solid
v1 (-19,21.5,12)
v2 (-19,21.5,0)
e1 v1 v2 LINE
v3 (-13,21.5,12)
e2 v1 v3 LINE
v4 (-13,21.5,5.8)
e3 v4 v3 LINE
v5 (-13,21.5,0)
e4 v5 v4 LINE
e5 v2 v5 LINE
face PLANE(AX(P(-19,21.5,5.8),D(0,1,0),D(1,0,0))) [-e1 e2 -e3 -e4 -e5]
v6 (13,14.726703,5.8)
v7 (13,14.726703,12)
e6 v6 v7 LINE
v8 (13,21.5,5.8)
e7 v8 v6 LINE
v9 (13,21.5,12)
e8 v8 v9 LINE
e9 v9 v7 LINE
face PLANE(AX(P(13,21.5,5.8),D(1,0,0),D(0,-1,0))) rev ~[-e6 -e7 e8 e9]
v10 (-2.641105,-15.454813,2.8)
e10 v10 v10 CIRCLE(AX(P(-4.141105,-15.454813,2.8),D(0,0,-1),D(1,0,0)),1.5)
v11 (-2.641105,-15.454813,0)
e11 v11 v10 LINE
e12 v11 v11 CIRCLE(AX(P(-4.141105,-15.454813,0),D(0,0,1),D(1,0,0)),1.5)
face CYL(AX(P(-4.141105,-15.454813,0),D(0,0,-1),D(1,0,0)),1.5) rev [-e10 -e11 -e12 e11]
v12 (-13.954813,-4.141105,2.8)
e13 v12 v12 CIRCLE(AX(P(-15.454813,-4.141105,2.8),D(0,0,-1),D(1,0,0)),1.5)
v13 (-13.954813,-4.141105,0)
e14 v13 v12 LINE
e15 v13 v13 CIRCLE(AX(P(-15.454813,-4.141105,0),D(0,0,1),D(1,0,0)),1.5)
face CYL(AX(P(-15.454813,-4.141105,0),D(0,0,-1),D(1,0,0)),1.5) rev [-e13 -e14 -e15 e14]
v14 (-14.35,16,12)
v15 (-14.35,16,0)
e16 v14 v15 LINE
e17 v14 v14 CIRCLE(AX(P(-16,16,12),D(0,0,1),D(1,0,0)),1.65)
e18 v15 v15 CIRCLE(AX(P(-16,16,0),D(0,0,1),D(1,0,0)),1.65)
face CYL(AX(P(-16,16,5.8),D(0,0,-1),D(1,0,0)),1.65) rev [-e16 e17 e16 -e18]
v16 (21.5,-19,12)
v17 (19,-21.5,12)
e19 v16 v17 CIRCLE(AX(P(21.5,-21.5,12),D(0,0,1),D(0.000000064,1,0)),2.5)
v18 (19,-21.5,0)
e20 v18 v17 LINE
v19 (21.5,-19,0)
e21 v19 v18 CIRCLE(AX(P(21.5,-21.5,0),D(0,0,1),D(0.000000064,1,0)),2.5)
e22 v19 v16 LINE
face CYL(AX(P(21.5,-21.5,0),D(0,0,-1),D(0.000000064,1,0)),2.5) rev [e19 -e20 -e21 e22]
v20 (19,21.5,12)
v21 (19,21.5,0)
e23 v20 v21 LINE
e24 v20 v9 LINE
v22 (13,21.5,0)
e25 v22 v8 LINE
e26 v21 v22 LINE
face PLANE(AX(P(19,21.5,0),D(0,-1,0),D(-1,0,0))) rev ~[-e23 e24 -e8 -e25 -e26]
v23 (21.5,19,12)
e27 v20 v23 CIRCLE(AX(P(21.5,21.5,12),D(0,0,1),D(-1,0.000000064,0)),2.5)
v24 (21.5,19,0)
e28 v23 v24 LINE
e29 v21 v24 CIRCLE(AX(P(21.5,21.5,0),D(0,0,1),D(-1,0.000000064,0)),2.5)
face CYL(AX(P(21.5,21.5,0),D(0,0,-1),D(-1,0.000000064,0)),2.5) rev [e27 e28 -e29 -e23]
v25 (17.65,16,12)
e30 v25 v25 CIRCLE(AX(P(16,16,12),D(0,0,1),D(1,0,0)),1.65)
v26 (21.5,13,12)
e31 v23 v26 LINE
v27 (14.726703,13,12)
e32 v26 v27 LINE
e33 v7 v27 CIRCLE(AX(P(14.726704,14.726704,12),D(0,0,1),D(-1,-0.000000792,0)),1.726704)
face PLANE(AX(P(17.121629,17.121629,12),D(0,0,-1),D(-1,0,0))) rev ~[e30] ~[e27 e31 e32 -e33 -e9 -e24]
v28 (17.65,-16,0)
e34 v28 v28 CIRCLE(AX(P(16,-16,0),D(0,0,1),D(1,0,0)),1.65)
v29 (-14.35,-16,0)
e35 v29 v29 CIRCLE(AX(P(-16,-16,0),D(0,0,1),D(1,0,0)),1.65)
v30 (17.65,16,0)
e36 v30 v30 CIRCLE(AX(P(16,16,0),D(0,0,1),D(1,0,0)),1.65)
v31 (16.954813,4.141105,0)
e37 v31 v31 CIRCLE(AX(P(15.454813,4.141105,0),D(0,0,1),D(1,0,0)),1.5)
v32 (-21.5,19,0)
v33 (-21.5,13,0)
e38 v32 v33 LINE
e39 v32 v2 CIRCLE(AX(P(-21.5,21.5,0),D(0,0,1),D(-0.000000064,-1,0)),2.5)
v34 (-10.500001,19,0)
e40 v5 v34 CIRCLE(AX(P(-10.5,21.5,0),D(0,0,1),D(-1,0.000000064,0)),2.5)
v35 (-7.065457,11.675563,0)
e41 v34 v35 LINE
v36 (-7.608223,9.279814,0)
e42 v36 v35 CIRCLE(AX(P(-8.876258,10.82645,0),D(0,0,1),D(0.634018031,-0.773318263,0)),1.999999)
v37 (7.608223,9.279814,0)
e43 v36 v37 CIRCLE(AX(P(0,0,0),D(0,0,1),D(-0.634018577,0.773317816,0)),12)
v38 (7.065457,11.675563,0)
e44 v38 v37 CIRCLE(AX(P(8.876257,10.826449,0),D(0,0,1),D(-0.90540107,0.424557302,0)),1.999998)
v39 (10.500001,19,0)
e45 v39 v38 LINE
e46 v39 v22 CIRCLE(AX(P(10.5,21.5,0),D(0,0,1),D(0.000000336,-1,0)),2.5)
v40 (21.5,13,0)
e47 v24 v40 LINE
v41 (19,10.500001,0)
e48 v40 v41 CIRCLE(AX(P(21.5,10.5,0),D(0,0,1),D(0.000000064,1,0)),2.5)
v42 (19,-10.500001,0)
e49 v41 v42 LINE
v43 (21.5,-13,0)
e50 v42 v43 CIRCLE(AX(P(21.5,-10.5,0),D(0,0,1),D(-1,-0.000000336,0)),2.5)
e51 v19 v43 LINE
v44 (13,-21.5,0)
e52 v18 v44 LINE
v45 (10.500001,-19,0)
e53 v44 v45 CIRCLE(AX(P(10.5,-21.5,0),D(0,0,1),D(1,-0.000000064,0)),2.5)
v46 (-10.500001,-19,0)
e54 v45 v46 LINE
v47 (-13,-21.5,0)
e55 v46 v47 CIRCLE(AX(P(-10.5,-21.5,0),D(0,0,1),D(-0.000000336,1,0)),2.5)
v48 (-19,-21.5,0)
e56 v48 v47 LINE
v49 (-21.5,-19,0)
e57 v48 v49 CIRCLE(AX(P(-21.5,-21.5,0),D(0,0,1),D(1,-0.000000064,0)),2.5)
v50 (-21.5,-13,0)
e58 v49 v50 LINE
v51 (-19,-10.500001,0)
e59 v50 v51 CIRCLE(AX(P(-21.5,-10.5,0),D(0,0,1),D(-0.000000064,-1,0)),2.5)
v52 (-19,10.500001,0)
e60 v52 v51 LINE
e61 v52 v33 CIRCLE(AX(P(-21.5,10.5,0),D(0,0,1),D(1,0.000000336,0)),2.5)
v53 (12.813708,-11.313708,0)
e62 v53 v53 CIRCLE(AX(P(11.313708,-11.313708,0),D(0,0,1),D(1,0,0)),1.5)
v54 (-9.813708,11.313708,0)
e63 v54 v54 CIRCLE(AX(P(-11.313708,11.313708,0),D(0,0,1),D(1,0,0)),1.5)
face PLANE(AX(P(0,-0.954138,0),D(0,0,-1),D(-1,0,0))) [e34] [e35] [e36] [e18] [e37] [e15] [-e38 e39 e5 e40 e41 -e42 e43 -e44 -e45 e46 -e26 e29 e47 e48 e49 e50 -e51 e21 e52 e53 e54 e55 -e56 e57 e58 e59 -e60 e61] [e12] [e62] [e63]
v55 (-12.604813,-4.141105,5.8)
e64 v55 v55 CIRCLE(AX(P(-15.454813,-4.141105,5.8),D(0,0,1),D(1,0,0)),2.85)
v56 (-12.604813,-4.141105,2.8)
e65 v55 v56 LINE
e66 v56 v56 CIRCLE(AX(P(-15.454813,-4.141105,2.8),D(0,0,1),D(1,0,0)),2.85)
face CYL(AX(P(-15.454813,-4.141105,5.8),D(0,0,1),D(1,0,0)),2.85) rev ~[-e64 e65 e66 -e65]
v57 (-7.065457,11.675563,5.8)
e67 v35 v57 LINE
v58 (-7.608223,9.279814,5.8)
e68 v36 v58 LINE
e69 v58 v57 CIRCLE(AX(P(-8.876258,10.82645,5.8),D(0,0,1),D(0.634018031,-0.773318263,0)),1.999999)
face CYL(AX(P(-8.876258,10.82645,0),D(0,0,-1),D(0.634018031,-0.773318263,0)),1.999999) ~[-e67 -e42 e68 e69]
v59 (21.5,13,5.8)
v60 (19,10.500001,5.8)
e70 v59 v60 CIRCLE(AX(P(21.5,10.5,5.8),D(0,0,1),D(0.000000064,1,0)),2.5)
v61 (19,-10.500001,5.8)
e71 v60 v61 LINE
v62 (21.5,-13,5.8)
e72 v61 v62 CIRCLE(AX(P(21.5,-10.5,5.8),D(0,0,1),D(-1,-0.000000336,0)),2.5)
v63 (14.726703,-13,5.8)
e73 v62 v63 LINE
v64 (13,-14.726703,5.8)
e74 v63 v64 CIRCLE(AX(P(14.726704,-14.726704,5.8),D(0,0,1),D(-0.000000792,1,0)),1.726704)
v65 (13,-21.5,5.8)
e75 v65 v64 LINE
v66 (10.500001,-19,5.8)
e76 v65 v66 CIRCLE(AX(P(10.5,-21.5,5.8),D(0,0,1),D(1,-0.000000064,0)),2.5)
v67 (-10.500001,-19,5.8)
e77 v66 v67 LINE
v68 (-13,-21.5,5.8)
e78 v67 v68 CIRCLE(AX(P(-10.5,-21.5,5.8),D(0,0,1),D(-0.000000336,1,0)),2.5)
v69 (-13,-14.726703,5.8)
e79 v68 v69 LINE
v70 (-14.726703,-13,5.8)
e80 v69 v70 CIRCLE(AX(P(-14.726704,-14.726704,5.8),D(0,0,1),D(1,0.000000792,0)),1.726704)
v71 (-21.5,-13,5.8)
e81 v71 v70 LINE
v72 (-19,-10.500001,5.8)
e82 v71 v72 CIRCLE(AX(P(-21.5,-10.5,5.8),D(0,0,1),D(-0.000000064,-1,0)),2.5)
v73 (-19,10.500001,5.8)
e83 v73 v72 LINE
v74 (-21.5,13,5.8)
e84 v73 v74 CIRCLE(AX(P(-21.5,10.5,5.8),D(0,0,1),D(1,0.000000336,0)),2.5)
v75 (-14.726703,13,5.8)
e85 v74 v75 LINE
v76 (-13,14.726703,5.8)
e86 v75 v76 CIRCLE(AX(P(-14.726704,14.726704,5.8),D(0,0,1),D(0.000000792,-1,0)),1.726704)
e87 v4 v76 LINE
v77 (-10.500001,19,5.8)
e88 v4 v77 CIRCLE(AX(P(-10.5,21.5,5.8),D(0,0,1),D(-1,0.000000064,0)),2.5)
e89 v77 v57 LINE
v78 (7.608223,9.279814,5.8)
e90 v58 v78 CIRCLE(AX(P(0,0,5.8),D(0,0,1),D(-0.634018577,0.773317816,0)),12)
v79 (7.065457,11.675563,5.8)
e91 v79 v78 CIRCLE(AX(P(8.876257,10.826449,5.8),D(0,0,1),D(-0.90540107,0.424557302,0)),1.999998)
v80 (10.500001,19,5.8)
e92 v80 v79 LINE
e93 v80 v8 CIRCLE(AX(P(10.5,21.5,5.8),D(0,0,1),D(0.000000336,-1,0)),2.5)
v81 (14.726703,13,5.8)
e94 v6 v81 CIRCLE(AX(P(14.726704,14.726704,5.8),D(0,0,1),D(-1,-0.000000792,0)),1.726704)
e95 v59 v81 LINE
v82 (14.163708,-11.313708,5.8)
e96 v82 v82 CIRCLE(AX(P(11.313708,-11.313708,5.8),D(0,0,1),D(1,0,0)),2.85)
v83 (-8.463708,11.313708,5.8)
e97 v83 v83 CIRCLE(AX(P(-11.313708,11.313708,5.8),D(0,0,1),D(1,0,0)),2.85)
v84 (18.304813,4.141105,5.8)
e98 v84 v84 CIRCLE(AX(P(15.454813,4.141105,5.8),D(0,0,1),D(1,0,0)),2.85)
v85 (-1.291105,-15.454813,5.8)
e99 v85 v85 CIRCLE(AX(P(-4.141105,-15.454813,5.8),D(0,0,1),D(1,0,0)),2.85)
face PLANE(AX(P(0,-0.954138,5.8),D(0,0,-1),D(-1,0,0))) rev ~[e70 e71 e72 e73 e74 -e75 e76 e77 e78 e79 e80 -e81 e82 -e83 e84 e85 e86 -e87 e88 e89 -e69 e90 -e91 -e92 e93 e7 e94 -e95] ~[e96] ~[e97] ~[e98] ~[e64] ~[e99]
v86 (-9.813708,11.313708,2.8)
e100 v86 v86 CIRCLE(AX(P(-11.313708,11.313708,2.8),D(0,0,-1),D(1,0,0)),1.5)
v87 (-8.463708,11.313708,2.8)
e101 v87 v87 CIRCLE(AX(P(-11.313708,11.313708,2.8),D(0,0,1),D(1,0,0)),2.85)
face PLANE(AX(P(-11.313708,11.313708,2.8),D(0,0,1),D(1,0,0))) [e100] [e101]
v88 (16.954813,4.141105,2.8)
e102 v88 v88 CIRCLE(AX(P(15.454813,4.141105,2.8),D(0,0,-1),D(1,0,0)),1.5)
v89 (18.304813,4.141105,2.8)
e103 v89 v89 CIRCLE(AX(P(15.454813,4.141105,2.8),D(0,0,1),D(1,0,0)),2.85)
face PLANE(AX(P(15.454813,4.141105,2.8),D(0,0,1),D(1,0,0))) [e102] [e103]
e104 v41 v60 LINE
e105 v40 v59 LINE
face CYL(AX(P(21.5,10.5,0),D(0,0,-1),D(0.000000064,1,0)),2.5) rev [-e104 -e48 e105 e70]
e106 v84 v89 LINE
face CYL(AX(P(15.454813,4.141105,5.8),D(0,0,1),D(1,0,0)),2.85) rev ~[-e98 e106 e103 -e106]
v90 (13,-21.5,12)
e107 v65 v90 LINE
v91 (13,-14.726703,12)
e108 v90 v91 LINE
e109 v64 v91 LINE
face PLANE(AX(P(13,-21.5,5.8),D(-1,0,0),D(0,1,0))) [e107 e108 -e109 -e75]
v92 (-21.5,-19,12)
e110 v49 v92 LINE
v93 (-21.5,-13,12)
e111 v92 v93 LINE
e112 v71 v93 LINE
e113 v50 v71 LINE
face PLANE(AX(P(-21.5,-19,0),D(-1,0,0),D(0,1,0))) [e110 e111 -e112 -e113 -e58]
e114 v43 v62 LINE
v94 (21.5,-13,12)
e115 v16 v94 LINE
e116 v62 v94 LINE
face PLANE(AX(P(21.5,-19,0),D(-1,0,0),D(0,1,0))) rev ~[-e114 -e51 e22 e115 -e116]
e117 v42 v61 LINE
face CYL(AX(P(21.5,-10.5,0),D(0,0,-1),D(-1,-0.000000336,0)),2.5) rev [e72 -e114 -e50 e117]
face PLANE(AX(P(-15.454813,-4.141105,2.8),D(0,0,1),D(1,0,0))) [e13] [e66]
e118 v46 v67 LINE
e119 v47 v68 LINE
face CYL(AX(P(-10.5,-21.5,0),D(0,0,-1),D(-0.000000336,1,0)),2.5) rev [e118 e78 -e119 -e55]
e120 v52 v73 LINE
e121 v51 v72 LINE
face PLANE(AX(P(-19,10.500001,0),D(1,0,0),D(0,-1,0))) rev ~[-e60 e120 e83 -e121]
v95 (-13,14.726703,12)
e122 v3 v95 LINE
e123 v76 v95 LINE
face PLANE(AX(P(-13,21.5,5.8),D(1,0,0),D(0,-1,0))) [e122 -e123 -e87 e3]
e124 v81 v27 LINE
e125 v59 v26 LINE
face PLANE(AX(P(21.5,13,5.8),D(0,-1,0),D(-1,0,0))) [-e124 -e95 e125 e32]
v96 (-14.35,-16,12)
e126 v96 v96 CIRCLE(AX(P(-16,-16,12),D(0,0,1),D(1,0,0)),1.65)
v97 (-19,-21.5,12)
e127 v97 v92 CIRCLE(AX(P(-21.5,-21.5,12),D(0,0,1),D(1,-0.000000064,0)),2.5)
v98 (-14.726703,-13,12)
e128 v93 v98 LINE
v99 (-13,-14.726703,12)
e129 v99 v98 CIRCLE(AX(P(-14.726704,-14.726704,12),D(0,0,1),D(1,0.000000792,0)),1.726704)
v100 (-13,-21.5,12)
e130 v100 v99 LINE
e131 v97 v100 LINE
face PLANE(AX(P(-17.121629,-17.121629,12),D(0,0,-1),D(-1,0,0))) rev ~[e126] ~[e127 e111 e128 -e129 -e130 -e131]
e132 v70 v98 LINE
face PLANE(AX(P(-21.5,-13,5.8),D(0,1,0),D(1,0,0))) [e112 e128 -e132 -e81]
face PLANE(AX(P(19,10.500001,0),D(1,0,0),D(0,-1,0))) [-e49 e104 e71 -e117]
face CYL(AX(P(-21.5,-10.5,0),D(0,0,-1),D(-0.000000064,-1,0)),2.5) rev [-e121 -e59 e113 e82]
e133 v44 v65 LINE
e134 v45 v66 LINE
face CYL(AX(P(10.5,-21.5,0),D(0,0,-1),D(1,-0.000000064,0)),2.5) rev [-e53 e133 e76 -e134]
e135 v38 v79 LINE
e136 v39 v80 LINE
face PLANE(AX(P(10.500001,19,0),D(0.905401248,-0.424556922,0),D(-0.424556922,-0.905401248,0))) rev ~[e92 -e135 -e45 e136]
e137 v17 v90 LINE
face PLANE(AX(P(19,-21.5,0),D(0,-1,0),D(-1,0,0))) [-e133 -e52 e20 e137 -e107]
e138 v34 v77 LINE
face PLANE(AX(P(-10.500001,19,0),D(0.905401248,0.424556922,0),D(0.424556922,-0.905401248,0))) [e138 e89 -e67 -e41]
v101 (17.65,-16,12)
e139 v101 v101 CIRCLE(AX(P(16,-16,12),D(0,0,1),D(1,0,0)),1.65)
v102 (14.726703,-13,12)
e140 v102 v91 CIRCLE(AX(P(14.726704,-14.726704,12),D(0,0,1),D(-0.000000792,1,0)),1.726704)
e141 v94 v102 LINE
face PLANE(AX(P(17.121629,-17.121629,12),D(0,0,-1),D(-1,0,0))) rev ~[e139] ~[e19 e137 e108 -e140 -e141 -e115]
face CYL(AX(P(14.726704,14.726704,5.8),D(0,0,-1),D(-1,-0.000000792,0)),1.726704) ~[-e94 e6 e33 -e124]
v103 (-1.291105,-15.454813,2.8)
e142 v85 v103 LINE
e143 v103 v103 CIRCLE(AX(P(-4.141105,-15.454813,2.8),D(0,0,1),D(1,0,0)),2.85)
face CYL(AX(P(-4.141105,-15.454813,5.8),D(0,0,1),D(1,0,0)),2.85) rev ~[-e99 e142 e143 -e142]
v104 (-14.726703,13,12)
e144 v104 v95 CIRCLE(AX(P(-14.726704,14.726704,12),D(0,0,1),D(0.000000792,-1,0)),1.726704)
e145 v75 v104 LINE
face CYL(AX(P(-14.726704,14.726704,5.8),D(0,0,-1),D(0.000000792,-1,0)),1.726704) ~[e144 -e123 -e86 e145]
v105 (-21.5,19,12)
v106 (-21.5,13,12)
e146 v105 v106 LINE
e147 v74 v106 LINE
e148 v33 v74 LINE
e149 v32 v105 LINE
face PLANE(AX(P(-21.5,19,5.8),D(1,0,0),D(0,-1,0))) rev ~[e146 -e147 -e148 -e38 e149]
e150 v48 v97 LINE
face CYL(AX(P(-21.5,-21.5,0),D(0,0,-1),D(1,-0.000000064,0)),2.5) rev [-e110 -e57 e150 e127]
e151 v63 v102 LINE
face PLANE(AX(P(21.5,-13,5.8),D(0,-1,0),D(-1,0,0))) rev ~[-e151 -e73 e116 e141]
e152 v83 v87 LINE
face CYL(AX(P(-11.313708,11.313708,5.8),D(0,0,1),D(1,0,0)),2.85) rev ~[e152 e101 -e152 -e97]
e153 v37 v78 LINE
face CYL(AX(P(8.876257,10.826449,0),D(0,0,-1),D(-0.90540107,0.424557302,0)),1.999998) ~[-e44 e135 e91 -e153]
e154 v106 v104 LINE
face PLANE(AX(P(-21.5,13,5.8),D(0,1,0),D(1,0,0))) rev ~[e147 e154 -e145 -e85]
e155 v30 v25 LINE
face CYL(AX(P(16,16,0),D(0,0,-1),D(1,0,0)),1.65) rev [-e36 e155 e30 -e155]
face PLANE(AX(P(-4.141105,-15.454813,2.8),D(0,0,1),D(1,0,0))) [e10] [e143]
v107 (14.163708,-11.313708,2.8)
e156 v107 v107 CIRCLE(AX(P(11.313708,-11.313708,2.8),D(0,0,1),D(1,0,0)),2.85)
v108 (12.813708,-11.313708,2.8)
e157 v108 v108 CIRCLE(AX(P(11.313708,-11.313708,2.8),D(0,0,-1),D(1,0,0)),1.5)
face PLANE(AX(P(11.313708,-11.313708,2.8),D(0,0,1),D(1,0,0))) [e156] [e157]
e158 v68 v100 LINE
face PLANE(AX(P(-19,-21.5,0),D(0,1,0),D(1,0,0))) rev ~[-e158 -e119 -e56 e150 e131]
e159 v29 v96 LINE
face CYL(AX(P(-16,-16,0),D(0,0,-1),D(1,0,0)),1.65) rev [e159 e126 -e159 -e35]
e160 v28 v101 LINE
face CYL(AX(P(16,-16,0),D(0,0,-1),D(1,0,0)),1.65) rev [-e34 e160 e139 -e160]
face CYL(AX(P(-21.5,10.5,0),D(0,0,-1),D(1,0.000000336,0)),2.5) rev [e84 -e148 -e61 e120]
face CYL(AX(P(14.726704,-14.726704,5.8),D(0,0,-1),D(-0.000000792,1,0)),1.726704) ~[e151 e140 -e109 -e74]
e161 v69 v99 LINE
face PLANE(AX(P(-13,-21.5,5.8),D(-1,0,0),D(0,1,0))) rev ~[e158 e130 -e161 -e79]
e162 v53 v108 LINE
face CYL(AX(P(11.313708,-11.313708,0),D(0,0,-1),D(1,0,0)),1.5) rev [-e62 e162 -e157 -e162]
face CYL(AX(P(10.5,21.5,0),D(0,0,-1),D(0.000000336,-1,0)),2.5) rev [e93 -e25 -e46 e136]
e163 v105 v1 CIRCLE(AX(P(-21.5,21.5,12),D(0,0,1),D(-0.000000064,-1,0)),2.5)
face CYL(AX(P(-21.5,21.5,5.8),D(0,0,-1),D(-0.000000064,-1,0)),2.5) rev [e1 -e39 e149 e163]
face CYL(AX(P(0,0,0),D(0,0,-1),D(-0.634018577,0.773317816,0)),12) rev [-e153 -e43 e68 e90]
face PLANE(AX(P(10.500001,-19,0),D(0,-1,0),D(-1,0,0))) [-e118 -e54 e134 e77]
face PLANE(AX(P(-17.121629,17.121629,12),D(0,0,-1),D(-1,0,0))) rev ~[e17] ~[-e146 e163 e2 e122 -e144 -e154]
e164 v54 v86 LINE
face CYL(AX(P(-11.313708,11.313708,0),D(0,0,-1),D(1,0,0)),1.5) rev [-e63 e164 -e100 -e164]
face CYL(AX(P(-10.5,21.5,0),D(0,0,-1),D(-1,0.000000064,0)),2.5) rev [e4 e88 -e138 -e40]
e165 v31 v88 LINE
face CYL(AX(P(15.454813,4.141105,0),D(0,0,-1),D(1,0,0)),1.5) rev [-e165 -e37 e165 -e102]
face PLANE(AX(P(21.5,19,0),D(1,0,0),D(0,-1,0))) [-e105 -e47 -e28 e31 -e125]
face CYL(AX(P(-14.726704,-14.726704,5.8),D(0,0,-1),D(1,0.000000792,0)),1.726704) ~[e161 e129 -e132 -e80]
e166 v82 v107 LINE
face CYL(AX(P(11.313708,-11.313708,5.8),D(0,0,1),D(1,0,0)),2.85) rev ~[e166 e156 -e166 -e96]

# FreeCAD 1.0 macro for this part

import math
import FreeCAD as App
import Part
import Sketcher
from FreeCAD import Vector
Q = App.Units.Quantity

doc = App.newDocument("Part")
body = doc.addObject("PartDesign::Body", "Body")

sketch1 = body.newObject("Sketcher::SketchObject", "Sketch")
sketch1.AttachmentSupport = (doc.getObject("XY_Plane"), [""])
sketch1.MapMode = "FlatFace"
sketch1.addGeometry(Part.ArcOfCircle(Part.Circle(Vector(-21.5, 21.5, 0), Vector(0, 0, 1), 2.5), math.radians(-90), math.radians(0)), False)
sketch1.addGeometry(Part.LineSegment(Vector(-21.5, 19, 0), Vector(-21.5, 13, 0)), False)
sketch1.addGeometry(Part.ArcOfCircle(Part.Circle(Vector(-21.5, 10.5, 0), Vector(0, 0, 1), 2.5), math.radians(0), math.radians(90)), False)
sketch1.addGeometry(Part.LineSegment(Vector(-19, 10.5, 0), Vector(-19, -10.5, 0)), False)
sketch1.addGeometry(Part.ArcOfCircle(Part.Circle(Vector(-21.5, -10.5, 0), Vector(0, 0, 1), 2.5), math.radians(-90), math.radians(0)), False)
sketch1.addGeometry(Part.LineSegment(Vector(-21.5, -13, 0), Vector(-21.5, -19, 0)), False)
sketch1.addGeometry(Part.ArcOfCircle(Part.Circle(Vector(-21.5, -21.5, 0), Vector(0, 0, 1), 2.5), math.radians(0), math.radians(90)), False)
sketch1.addGeometry(Part.LineSegment(Vector(-19, -21.5, 0), Vector(-13, -21.5, 0)), False)
sketch1.addGeometry(Part.ArcOfCircle(Part.Circle(Vector(-10.5, -21.5, 0), Vector(0, 0, 1), 2.5), math.radians(90), math.radians(180)), False)
sketch1.addGeometry(Part.LineSegment(Vector(-10.5, -19, 0), Vector(10.5, -19, 0)), False)
sketch1.addGeometry(Part.ArcOfCircle(Part.Circle(Vector(10.5, -21.5, 0), Vector(0, 0, 1), 2.5), math.radians(0), math.radians(90)), False)
sketch1.addGeometry(Part.LineSegment(Vector(13, -21.5, 0), Vector(19, -21.5, 0)), False)
sketch1.addGeometry(Part.ArcOfCircle(Part.Circle(Vector(21.5, -21.5, 0), Vector(0, 0, 1), 2.5), math.radians(90), math.radians(180)), False)
sketch1.addGeometry(Part.LineSegment(Vector(21.5, -19, 0), Vector(21.5, -13, 0)), False)
sketch1.addGeometry(Part.ArcOfCircle(Part.Circle(Vector(21.5, -10.5, 0), Vector(0, 0, 1), 2.5), math.radians(-180), math.radians(-90)), False)
sketch1.addGeometry(Part.LineSegment(Vector(19, -10.5, 0), Vector(19, 10.5, 0)), False)
sketch1.addGeometry(Part.ArcOfCircle(Part.Circle(Vector(21.5, 10.5, 0), Vector(0, 0, 1), 2.5), math.radians(90), math.radians(180)), False)
sketch1.addGeometry(Part.LineSegment(Vector(21.5, 13, 0), Vector(21.5, 19, 0)), False)
sketch1.addGeometry(Part.ArcOfCircle(Part.Circle(Vector(21.5, 21.5, 0), Vector(0, 0, 1), 2.5), math.radians(180), math.radians(270)), False)
sketch1.addGeometry(Part.LineSegment(Vector(19, 21.5, 0), Vector(13, 21.5, 0)), False)
sketch1.addGeometry(Part.ArcOfCircle(Part.Circle(Vector(10.5, 21.5, 0), Vector(0, 0, 1), 2.5), math.radians(-90), math.radians(0)), False)
sketch1.addGeometry(Part.LineSegment(Vector(10.5, 19, 0), Vector(7.1, 11.7, 0)), False)
sketch1.addGeometry(Part.ArcOfCircle(Part.Circle(Vector(8.9, 10.8, 0), Vector(0, 0, 1), 2), math.radians(155), math.radians(231)), False)
sketch1.addGeometry(Part.ArcOfCircle(Part.Circle(Vector(0, 0, 0), Vector(0, 0, 1), 12), math.radians(129), math.radians(411)), False)
sketch1.addGeometry(Part.ArcOfCircle(Part.Circle(Vector(-8.9, 10.8, 0), Vector(0, 0, 1), 2), math.radians(-51), math.radians(25)), False)
sketch1.addGeometry(Part.LineSegment(Vector(-7.1, 11.7, 0), Vector(-10.5, 19, 0)), False)
sketch1.addGeometry(Part.ArcOfCircle(Part.Circle(Vector(-10.5, 21.5, 0), Vector(0, 0, 1), 2.5), math.radians(180), math.radians(270)), False)
sketch1.addGeometry(Part.LineSegment(Vector(-13, 21.5, 0), Vector(-19, 21.5, 0)), False)
sketch1.addGeometry(Part.Circle(Vector(16, -16, 0), Vector(0, 0, 1), 1.6), False)
sketch1.addGeometry(Part.Circle(Vector(11.3, -11.3, 0), Vector(0, 0, 1), 1.5), False)
sketch1.addGeometry(Part.Circle(Vector(-4.1, -15.5, 0), Vector(0, 0, 1), 1.5), False)
sketch1.addGeometry(Part.Circle(Vector(-16, -16, 0), Vector(0, 0, 1), 1.6), False)
sketch1.addGeometry(Part.Circle(Vector(-15.5, -4.1, 0), Vector(0, 0, 1), 1.5), False)
sketch1.addGeometry(Part.Circle(Vector(15.5, 4.1, 0), Vector(0, 0, 1), 1.5), False)
sketch1.addGeometry(Part.Circle(Vector(16, 16, 0), Vector(0, 0, 1), 1.6), False)
sketch1.addGeometry(Part.Circle(Vector(-11.3, 11.3, 0), Vector(0, 0, 1), 1.5), False)
sketch1.addGeometry(Part.Circle(Vector(-16, 16, 0), Vector(0, 0, 1), 1.6), False)
sketch1.addConstraint(Sketcher.Constraint("Coincident", 0, 1, 1, 1))
sketch1.addConstraint(Sketcher.Constraint("Coincident", 1, 2, 2, 2))
sketch1.addConstraint(Sketcher.Constraint("Tangent", 2, 1, 3, 1))
sketch1.addConstraint(Sketcher.Constraint("Tangent", 3, 2, 4, 2))
sketch1.addConstraint(Sketcher.Constraint("Coincident", 4, 1, 5, 1))
sketch1.addConstraint(Sketcher.Constraint("Coincident", 5, 2, 6, 2))
sketch1.addConstraint(Sketcher.Constraint("Coincident", 6, 1, 7, 1))
sketch1.addConstraint(Sketcher.Constraint("Coincident", 7, 2, 8, 2))
sketch1.addConstraint(Sketcher.Constraint("Tangent", 8, 1, 9, 1))
sketch1.addConstraint(Sketcher.Constraint("Tangent", 9, 2, 10, 2))
sketch1.addConstraint(Sketcher.Constraint("Coincident", 10, 1, 11, 1))
sketch1.addConstraint(Sketcher.Constraint("Coincident", 11, 2, 12, 2))
sketch1.addConstraint(Sketcher.Constraint("Coincident", 12, 1, 13, 1))
sketch1.addConstraint(Sketcher.Constraint("Coincident", 13, 2, 14, 2))
sketch1.addConstraint(Sketcher.Constraint("Tangent", 14, 1, 15, 1))
sketch1.addConstraint(Sketcher.Constraint("Tangent", 15, 2, 16, 2))
sketch1.addConstraint(Sketcher.Constraint("Coincident", 16, 1, 17, 1))
sketch1.addConstraint(Sketcher.Constraint("Coincident", 17, 2, 18, 2))
sketch1.addConstraint(Sketcher.Constraint("Coincident", 18, 1, 19, 1))
sketch1.addConstraint(Sketcher.Constraint("Coincident", 19, 2, 20, 2))
sketch1.addConstraint(Sketcher.Constraint("Coincident", 20, 1, 21, 1))
sketch1.addConstraint(Sketcher.Constraint("Tangent", 21, 2, 22, 1))
sketch1.addConstraint(Sketcher.Constraint("Tangent", 22, 2, 23, 2))
sketch1.addConstraint(Sketcher.Constraint("Tangent", 23, 1, 24, 1))
sketch1.addConstraint(Sketcher.Constraint("Tangent", 24, 2, 25, 1))
sketch1.addConstraint(Sketcher.Constraint("Coincident", 25, 2, 26, 2))
sketch1.addConstraint(Sketcher.Constraint("Coincident", 26, 1, 27, 1))
sketch1.addConstraint(Sketcher.Constraint("Coincident", 27, 2, 0, 2))
sketch1.addConstraint(Sketcher.Constraint("Vertical", 1))
sketch1.addConstraint(Sketcher.Constraint("Vertical", 3))
sketch1.addConstraint(Sketcher.Constraint("Vertical", 5))
sketch1.addConstraint(Sketcher.Constraint("Horizontal", 7))
sketch1.addConstraint(Sketcher.Constraint("Horizontal", 9))
sketch1.addConstraint(Sketcher.Constraint("Horizontal", 11))
sketch1.addConstraint(Sketcher.Constraint("Vertical", 13))
sketch1.addConstraint(Sketcher.Constraint("Vertical", 15))
sketch1.addConstraint(Sketcher.Constraint("Vertical", 17))
sketch1.addConstraint(Sketcher.Constraint("Horizontal", 19))
sketch1.addConstraint(Sketcher.Constraint("Horizontal", 27))
sketch1.addConstraint(Sketcher.Constraint("Coincident", 23, 3, -1, 1))
sketch1.addConstraint(Sketcher.Constraint("Equal", 0, 2))
sketch1.addConstraint(Sketcher.Constraint("Equal", 2, 4))
sketch1.addConstraint(Sketcher.Constraint("Equal", 4, 6))
sketch1.addConstraint(Sketcher.Constraint("Equal", 6, 8))
sketch1.addConstraint(Sketcher.Constraint("Equal", 8, 10))
sketch1.addConstraint(Sketcher.Constraint("Equal", 10, 12))
sketch1.addConstraint(Sketcher.Constraint("Equal", 12, 14))
sketch1.addConstraint(Sketcher.Constraint("Equal", 14, 16))
sketch1.addConstraint(Sketcher.Constraint("Equal", 16, 18))
sketch1.addConstraint(Sketcher.Constraint("Equal", 18, 20))
sketch1.addConstraint(Sketcher.Constraint("Equal", 22, 24))
sketch1.addConstraint(Sketcher.Constraint("Equal", 20, 26))
sketch1.addConstraint(Sketcher.Constraint("Equal", 29, 30))
sketch1.addConstraint(Sketcher.Constraint("Equal", 28, 31))
sketch1.addConstraint(Sketcher.Constraint("Equal", 30, 32))
sketch1.addConstraint(Sketcher.Constraint("Equal", 32, 33))
sketch1.addConstraint(Sketcher.Constraint("Equal", 31, 34))
sketch1.addConstraint(Sketcher.Constraint("Equal", 33, 35))
sketch1.addConstraint(Sketcher.Constraint("Equal", 34, 36))
sketch1.addConstraint(Sketcher.Constraint("Symmetric", 0, 3, 12, 3, -1, 1))
sketch1.addConstraint(Sketcher.Constraint("Symmetric", 2, 3, 14, 3, -1, 1))
sketch1.addConstraint(Sketcher.Constraint("Symmetric", 6, 3, 18, 3, -1, 1))
sketch1.addConstraint(Sketcher.Constraint("Symmetric", 8, 3, 20, 3, -1, 1))
sketch1.addConstraint(Sketcher.Constraint("Symmetric", 10, 3, 26, 3, -1, 1))
sketch1.addConstraint(Sketcher.Constraint("Symmetric", 32, 3, 33, 3, -1, 1))
sketch1.addConstraint(Sketcher.Constraint("Symmetric", 31, 3, 34, 3, -1, 1))
sketch1.addConstraint(Sketcher.Constraint("Symmetric", 29, 3, 35, 3, -1, 1))
sketch1.addConstraint(Sketcher.Constraint("Symmetric", 28, 3, 36, 3, -1, 1))
sketch1.addConstraint(Sketcher.Constraint("Symmetric", 4, 1, 16, 1, -1, 1))
sketch1.addConstraint(Sketcher.Constraint("Symmetric", 6, 3, 12, 3, -2))
sketch1.addConstraint(Sketcher.Constraint("Symmetric", 28, 3, 31, 3, -2))
sketch1.addConstraint(Sketcher.Constraint("Symmetric", 7, 2, 10, 1, -2))
sketch1.addConstraint(Sketcher.Constraint("Symmetric", 4, 1, 13, 2, -2))
sketch1.addConstraint(Sketcher.Constraint("Symmetric", 21, 2, 24, 2, -2))
sketch1.addConstraint(Sketcher.Constraint("Horizontal", 6, 3, 8, 3))
sketch1.addConstraint(Sketcher.Constraint("Horizontal", 12, 3, 6, 1))
sketch1.addConstraint(Sketcher.Constraint("Horizontal", 26, 3, 18, 1))
sketch1.addConstraint(Sketcher.Constraint("Horizontal", 19, 2, 26, 1))
sketch1.addConstraint(Sketcher.Constraint("Vertical", 0, 3, 2, 3))
sketch1.addConstraint(Sketcher.Constraint("Vertical", 6, 3, 0, 1))
sketch1.addConstraint(Sketcher.Constraint("Vertical", 1, 2, 4, 1))
sketch1.addConstraint(Sketcher.Constraint("Vertical", 9, 2, 20, 1))
sketch1.addConstraint(Sketcher.Constraint("Equal", 27, 1))
sketch1.addConstraint(Sketcher.Constraint("Equal", 9, 3))
sketch1.addConstraint(Sketcher.Constraint("Diameter", 29, Q("3 mm")))
sketch1.addConstraint(Sketcher.Constraint("Radius", 23, Q("12 mm")))
sketch1.addConstraint(Sketcher.Constraint("Radius", 24, Q("1.999999 mm")))
sketch1.addConstraint(Sketcher.Constraint("Diameter", 28, Q("3.3 mm")))
sketch1.addConstraint(Sketcher.Constraint("Radius", 0, Q("2.5 mm")))
sketch1.addConstraint(Sketcher.Constraint("DistanceX", 7, 1, 7, 2, Q("6 mm")))
sketch1.addConstraint(Sketcher.Constraint("DistanceX", 9, 1, 9, 2, Q("21.000002 mm")))
sketch1.addConstraint(Sketcher.Constraint("DistanceX", -1, 1, 28, 3, Q("16 mm")))
sketch1.addConstraint(Sketcher.Constraint("DistanceY", 28, 3, -1, 1, Q("16 mm")))
sketch1.addConstraint(Sketcher.Constraint("DistanceX", 21, 2, 22, 3, Q("1.8108 mm")))
sketch1.addConstraint(Sketcher.Constraint("DistanceY", 10, 3, 29, 3, Q("10.186292 mm")))
sketch1.addConstraint(Sketcher.Constraint("DistanceX", 29, 3, 14, 3, Q("10.186292 mm")))
sketch1.addConstraint(Sketcher.Constraint("DistanceY", 33, 3, 21, 2, Q("7.534458 mm")))
sketch1.addConstraint(Sketcher.Constraint("DistanceX", 22, 2, 33, 3, Q("7.84659 mm")))
sketch1.addConstraint(Sketcher.Constraint("DistanceX", 30, 3, -1, 1, Q("4.141105 mm")))
sketch1.addConstraint(Sketcher.Constraint("DistanceY", 30, 3, -1, 1, Q("15.454813 mm")))
pad1 = body.newObject("PartDesign::Pad", "Pad")
pad1.Profile = sketch1
pad1.Length = 5.8

sketch2 = body.newObject("Sketcher::SketchObject", "Sketch001")
sketch2.AttachmentSupport = (doc.getObject("XY_Plane"), [""])
sketch2.MapMode = "FlatFace"
sketch2.AttachmentOffset = App.Placement(Vector(0, 0, 5.8), App.Rotation())
sketch2.addGeometry(Part.ArcOfCircle(Part.Circle(Vector(-21.5, 21.5, 0), Vector(0, 0, 1), 2.5), math.radians(-90), math.radians(0)), False)
sketch2.addGeometry(Part.LineSegment(Vector(-21.5, 19, 0), Vector(-21.5, 13, 0)), False)
sketch2.addGeometry(Part.LineSegment(Vector(-21.5, 13, 0), Vector(-14.7, 13, 0)), False)
sketch2.addGeometry(Part.ArcOfCircle(Part.Circle(Vector(-14.7, 14.7, 0), Vector(0, 0, 1), 1.7), math.radians(-90), math.radians(0)), False)
sketch2.addGeometry(Part.LineSegment(Vector(-13, 14.7, 0), Vector(-13, 21.5, 0)), False)
sketch2.addGeometry(Part.LineSegment(Vector(-13, 21.5, 0), Vector(-19, 21.5, 0)), False)
sketch2.addGeometry(Part.Circle(Vector(-16, 16, 0), Vector(0, 0, 1), 1.6), False)
sketch2.addGeometry(Part.ArcOfCircle(Part.Circle(Vector(-21.5, -21.5, 0), Vector(0, 0, 1), 2.5), math.radians(0), math.radians(90)), False)
sketch2.addGeometry(Part.LineSegment(Vector(-19, -21.5, 0), Vector(-13, -21.5, 0)), False)
sketch2.addGeometry(Part.LineSegment(Vector(-13, -21.5, 0), Vector(-13, -14.7, 0)), False)
sketch2.addGeometry(Part.ArcOfCircle(Part.Circle(Vector(-14.7, -14.7, 0), Vector(0, 0, 1), 1.7), math.radians(0), math.radians(90)), False)
sketch2.addGeometry(Part.LineSegment(Vector(-14.7, -13, 0), Vector(-21.5, -13, 0)), False)
sketch2.addGeometry(Part.LineSegment(Vector(-21.5, -13, 0), Vector(-21.5, -19, 0)), False)
sketch2.addGeometry(Part.Circle(Vector(-16, -16, 0), Vector(0, 0, 1), 1.6), False)
sketch2.addGeometry(Part.ArcOfCircle(Part.Circle(Vector(21.5, -21.5, 0), Vector(0, 0, 1), 2.5), math.radians(90), math.radians(180)), False)
sketch2.addGeometry(Part.LineSegment(Vector(21.5, -19, 0), Vector(21.5, -13, 0)), False)
sketch2.addGeometry(Part.LineSegment(Vector(21.5, -13, 0), Vector(14.7, -13, 0)), False)
sketch2.addGeometry(Part.ArcOfCircle(Part.Circle(Vector(14.7, -14.7, 0), Vector(0, 0, 1), 1.7), math.radians(90), math.radians(180)), False)
sketch2.addGeometry(Part.LineSegment(Vector(13, -14.7, 0), Vector(13, -21.5, 0)), False)
sketch2.addGeometry(Part.LineSegment(Vector(13, -21.5, 0), Vector(19, -21.5, 0)), False)
sketch2.addGeometry(Part.Circle(Vector(16, -16, 0), Vector(0, 0, 1), 1.6), False)
sketch2.addGeometry(Part.ArcOfCircle(Part.Circle(Vector(21.5, 21.5, 0), Vector(0, 0, 1), 2.5), math.radians(180), math.radians(270)), False)
sketch2.addGeometry(Part.LineSegment(Vector(19, 21.5, 0), Vector(13, 21.5, 0)), False)
sketch2.addGeometry(Part.LineSegment(Vector(13, 21.5, 0), Vector(13, 14.7, 0)), False)
sketch2.addGeometry(Part.ArcOfCircle(Part.Circle(Vector(14.7, 14.7, 0), Vector(0, 0, 1), 1.7), math.radians(-180), math.radians(-90)), False)
sketch2.addGeometry(Part.LineSegment(Vector(14.7, 13, 0), Vector(21.5, 13, 0)), False)
sketch2.addGeometry(Part.LineSegment(Vector(21.5, 13, 0), Vector(21.5, 19, 0)), False)
sketch2.addGeometry(Part.Circle(Vector(16, 16, 0), Vector(0, 0, 1), 1.6), False)
sketch2.addConstraint(Sketcher.Constraint("Coincident", 0, 1, 1, 1))
sketch2.addConstraint(Sketcher.Constraint("Coincident", 1, 2, 2, 1))
sketch2.addConstraint(Sketcher.Constraint("Tangent", 2, 2, 3, 1))
sketch2.addConstraint(Sketcher.Constraint("Tangent", 3, 2, 4, 1))
sketch2.addConstraint(Sketcher.Constraint("Coincident", 4, 2, 5, 1))
sketch2.addConstraint(Sketcher.Constraint("Coincident", 5, 2, 0, 2))
sketch2.addConstraint(Sketcher.Constraint("Coincident", 7, 1, 8, 1))
sketch2.addConstraint(Sketcher.Constraint("Coincident", 8, 2, 9, 1))
sketch2.addConstraint(Sketcher.Constraint("Tangent", 9, 2, 10, 1))
sketch2.addConstraint(Sketcher.Constraint("Tangent", 10, 2, 11, 1))
sketch2.addConstraint(Sketcher.Constraint("Coincident", 11, 2, 12, 1))
sketch2.addConstraint(Sketcher.Constraint("Coincident", 12, 2, 7, 2))
sketch2.addConstraint(Sketcher.Constraint("Coincident", 14, 1, 15, 1))
sketch2.addConstraint(Sketcher.Constraint("Coincident", 15, 2, 16, 1))
sketch2.addConstraint(Sketcher.Constraint("Tangent", 16, 2, 17, 1))
sketch2.addConstraint(Sketcher.Constraint("Tangent", 17, 2, 18, 1))
sketch2.addConstraint(Sketcher.Constraint("Coincident", 18, 2, 19, 1))
sketch2.addConstraint(Sketcher.Constraint("Coincident", 19, 2, 14, 2))
sketch2.addConstraint(Sketcher.Constraint("Coincident", 21, 1, 22, 1))
sketch2.addConstraint(Sketcher.Constraint("Coincident", 22, 2, 23, 1))
sketch2.addConstraint(Sketcher.Constraint("Tangent", 23, 2, 24, 1))
sketch2.addConstraint(Sketcher.Constraint("Tangent", 24, 2, 25, 1))
sketch2.addConstraint(Sketcher.Constraint("Coincident", 25, 2, 26, 1))
sketch2.addConstraint(Sketcher.Constraint("Coincident", 26, 2, 21, 2))
sketch2.addConstraint(Sketcher.Constraint("Vertical", 1))
sketch2.addConstraint(Sketcher.Constraint("Horizontal", 2))
sketch2.addConstraint(Sketcher.Constraint("Vertical", 4))
sketch2.addConstraint(Sketcher.Constraint("Horizontal", 5))
sketch2.addConstraint(Sketcher.Constraint("Horizontal", 8))
sketch2.addConstraint(Sketcher.Constraint("Vertical", 9))
sketch2.addConstraint(Sketcher.Constraint("Horizontal", 11))
sketch2.addConstraint(Sketcher.Constraint("Vertical", 12))
sketch2.addConstraint(Sketcher.Constraint("Vertical", 15))
sketch2.addConstraint(Sketcher.Constraint("Horizontal", 16))
sketch2.addConstraint(Sketcher.Constraint("Vertical", 18))
sketch2.addConstraint(Sketcher.Constraint("Horizontal", 19))
sketch2.addConstraint(Sketcher.Constraint("Horizontal", 22))
sketch2.addConstraint(Sketcher.Constraint("Vertical", 23))
sketch2.addConstraint(Sketcher.Constraint("Horizontal", 25))
sketch2.addConstraint(Sketcher.Constraint("Vertical", 26))
sketch2.addConstraint(Sketcher.Constraint("Equal", 0, 7))
sketch2.addConstraint(Sketcher.Constraint("Equal", 3, 10))
sketch2.addConstraint(Sketcher.Constraint("Equal", 6, 13))
sketch2.addConstraint(Sketcher.Constraint("Equal", 7, 14))
sketch2.addConstraint(Sketcher.Constraint("Equal", 10, 17))
sketch2.addConstraint(Sketcher.Constraint("Equal", 13, 20))
sketch2.addConstraint(Sketcher.Constraint("Equal", 14, 21))
sketch2.addConstraint(Sketcher.Constraint("Equal", 17, 24))
sketch2.addConstraint(Sketcher.Constraint("Equal", 20, 27))
sketch2.addConstraint(Sketcher.Constraint("Symmetric", 0, 3, 14, 3, -1, 1))
sketch2.addConstraint(Sketcher.Constraint("Symmetric", 3, 3, 17, 3, -1, 1))
sketch2.addConstraint(Sketcher.Constraint("Symmetric", 6, 3, 20, 3, -1, 1))
sketch2.addConstraint(Sketcher.Constraint("Symmetric", 7, 3, 21, 3, -1, 1))
sketch2.addConstraint(Sketcher.Constraint("Symmetric", 10, 3, 24, 3, -1, 1))
sketch2.addConstraint(Sketcher.Constraint("Symmetric", 13, 3, 27, 3, -1, 1))
sketch2.addConstraint(Sketcher.Constraint("Symmetric", 7, 3, 14, 3, -2))
sketch2.addConstraint(Sketcher.Constraint("Symmetric", 10, 3, 17, 3, -2))
sketch2.addConstraint(Sketcher.Constraint("Symmetric", 13, 3, 20, 3, -2))
sketch2.addConstraint(Sketcher.Constraint("Horizontal", 21, 3, 4, 2))
sketch2.addConstraint(Sketcher.Constraint("Horizontal", 14, 3, 7, 1))
sketch2.addConstraint(Sketcher.Constraint("Horizontal", 8, 2, 18, 2))
sketch2.addConstraint(Sketcher.Constraint("Horizontal", 5, 2, 21, 1))
sketch2.addConstraint(Sketcher.Constraint("Vertical", 7, 3, 0, 1))
sketch2.addConstraint(Sketcher.Constraint("Vertical", 1, 2, 11, 2))
sketch2.addConstraint(Sketcher.Constraint("Vertical", 21, 3, 14, 1))
sketch2.addConstraint(Sketcher.Constraint("Vertical", 15, 2, 25, 2))
sketch2.addConstraint(Sketcher.Constraint("Equal", 22, 1))
sketch2.addConstraint(Sketcher.Constraint("Diameter", 6, Q("3.3 mm")))
sketch2.addConstraint(Sketcher.Constraint("Radius", 0, Q("2.5 mm")))
sketch2.addConstraint(Sketcher.Constraint("DistanceX", 5, 2, 5, 1, Q("6 mm")))
sketch2.addConstraint(Sketcher.Constraint("DistanceX", 6, 3, -1, 1, Q("16 mm")))
sketch2.addConstraint(Sketcher.Constraint("DistanceY", -1, 1, 6, 3, Q("16 mm")))
sketch2.addConstraint(Sketcher.Constraint("DistanceY", -1, 1, 0, 1, Q("19 mm")))
sketch2.addConstraint(Sketcher.Constraint("DistanceX", 3, 2, -1, 1, Q("13 mm")))
sketch2.addConstraint(Sketcher.Constraint("Radius", 3, Q("1.726704 mm")))
pad2 = body.newObject("PartDesign::Pad", "Pad001")
pad2.Profile = sketch2
pad2.Length = 6.2

sketch3 = body.newObject("Sketcher::SketchObject", "Sketch002")
sketch3.AttachmentSupport = (doc.getObject("XY_Plane"), [""])
sketch3.MapMode = "FlatFace"
sketch3.AttachmentOffset = App.Placement(Vector(0, 0, 5.8), App.Rotation())
sketch3.addGeometry(Part.Circle(Vector(-11.3, 11.3, 0), Vector(0, 0, 1), 2.9), False)
sketch3.addGeometry(Part.Circle(Vector(15.5, 4.1, 0), Vector(0, 0, 1), 2.9), False)
sketch3.addGeometry(Part.Circle(Vector(11.3, -11.3, 0), Vector(0, 0, 1), 2.9), False)
sketch3.addGeometry(Part.Circle(Vector(-4.1, -15.5, 0), Vector(0, 0, 1), 2.9), False)
sketch3.addGeometry(Part.Circle(Vector(-15.5, -4.1, 0), Vector(0, 0, 1), 2.9), False)
sketch3.addConstraint(Sketcher.Constraint("Equal", 0, 1))
sketch3.addConstraint(Sketcher.Constraint("Equal", 1, 2))
sketch3.addConstraint(Sketcher.Constraint("Equal", 2, 3))
sketch3.addConstraint(Sketcher.Constraint("Equal", 3, 4))
sketch3.addConstraint(Sketcher.Constraint("Symmetric", 0, 3, 2, 3, -1, 1))
sketch3.addConstraint(Sketcher.Constraint("Symmetric", 1, 3, 4, 3, -1, 1))
sketch3.addConstraint(Sketcher.Constraint("Diameter", 0, Q("5.7 mm")))
sketch3.addConstraint(Sketcher.Constraint("DistanceX", 0, 3, 1, 3, Q("26.768521 mm")))
sketch3.addConstraint(Sketcher.Constraint("DistanceY", 3, 3, 0, 3, Q("26.768521 mm")))
sketch3.addConstraint(Sketcher.Constraint("DistanceY", 4, 3, 1, 3, Q("8.28221 mm")))
sketch3.addConstraint(Sketcher.Constraint("DistanceX", 0, 3, -1, 1, Q("11.313708 mm")))
sketch3.addConstraint(Sketcher.Constraint("DistanceY", -1, 1, 0, 3, Q("11.313708 mm")))
sketch3.addConstraint(Sketcher.Constraint("DistanceX", 3, 3, -1, 1, Q("4.141105 mm")))
pocket1 = body.newObject("PartDesign::Pocket", "Pocket")
pocket1.Profile = sketch3
pocket1.Length = 3

doc.recompute()
